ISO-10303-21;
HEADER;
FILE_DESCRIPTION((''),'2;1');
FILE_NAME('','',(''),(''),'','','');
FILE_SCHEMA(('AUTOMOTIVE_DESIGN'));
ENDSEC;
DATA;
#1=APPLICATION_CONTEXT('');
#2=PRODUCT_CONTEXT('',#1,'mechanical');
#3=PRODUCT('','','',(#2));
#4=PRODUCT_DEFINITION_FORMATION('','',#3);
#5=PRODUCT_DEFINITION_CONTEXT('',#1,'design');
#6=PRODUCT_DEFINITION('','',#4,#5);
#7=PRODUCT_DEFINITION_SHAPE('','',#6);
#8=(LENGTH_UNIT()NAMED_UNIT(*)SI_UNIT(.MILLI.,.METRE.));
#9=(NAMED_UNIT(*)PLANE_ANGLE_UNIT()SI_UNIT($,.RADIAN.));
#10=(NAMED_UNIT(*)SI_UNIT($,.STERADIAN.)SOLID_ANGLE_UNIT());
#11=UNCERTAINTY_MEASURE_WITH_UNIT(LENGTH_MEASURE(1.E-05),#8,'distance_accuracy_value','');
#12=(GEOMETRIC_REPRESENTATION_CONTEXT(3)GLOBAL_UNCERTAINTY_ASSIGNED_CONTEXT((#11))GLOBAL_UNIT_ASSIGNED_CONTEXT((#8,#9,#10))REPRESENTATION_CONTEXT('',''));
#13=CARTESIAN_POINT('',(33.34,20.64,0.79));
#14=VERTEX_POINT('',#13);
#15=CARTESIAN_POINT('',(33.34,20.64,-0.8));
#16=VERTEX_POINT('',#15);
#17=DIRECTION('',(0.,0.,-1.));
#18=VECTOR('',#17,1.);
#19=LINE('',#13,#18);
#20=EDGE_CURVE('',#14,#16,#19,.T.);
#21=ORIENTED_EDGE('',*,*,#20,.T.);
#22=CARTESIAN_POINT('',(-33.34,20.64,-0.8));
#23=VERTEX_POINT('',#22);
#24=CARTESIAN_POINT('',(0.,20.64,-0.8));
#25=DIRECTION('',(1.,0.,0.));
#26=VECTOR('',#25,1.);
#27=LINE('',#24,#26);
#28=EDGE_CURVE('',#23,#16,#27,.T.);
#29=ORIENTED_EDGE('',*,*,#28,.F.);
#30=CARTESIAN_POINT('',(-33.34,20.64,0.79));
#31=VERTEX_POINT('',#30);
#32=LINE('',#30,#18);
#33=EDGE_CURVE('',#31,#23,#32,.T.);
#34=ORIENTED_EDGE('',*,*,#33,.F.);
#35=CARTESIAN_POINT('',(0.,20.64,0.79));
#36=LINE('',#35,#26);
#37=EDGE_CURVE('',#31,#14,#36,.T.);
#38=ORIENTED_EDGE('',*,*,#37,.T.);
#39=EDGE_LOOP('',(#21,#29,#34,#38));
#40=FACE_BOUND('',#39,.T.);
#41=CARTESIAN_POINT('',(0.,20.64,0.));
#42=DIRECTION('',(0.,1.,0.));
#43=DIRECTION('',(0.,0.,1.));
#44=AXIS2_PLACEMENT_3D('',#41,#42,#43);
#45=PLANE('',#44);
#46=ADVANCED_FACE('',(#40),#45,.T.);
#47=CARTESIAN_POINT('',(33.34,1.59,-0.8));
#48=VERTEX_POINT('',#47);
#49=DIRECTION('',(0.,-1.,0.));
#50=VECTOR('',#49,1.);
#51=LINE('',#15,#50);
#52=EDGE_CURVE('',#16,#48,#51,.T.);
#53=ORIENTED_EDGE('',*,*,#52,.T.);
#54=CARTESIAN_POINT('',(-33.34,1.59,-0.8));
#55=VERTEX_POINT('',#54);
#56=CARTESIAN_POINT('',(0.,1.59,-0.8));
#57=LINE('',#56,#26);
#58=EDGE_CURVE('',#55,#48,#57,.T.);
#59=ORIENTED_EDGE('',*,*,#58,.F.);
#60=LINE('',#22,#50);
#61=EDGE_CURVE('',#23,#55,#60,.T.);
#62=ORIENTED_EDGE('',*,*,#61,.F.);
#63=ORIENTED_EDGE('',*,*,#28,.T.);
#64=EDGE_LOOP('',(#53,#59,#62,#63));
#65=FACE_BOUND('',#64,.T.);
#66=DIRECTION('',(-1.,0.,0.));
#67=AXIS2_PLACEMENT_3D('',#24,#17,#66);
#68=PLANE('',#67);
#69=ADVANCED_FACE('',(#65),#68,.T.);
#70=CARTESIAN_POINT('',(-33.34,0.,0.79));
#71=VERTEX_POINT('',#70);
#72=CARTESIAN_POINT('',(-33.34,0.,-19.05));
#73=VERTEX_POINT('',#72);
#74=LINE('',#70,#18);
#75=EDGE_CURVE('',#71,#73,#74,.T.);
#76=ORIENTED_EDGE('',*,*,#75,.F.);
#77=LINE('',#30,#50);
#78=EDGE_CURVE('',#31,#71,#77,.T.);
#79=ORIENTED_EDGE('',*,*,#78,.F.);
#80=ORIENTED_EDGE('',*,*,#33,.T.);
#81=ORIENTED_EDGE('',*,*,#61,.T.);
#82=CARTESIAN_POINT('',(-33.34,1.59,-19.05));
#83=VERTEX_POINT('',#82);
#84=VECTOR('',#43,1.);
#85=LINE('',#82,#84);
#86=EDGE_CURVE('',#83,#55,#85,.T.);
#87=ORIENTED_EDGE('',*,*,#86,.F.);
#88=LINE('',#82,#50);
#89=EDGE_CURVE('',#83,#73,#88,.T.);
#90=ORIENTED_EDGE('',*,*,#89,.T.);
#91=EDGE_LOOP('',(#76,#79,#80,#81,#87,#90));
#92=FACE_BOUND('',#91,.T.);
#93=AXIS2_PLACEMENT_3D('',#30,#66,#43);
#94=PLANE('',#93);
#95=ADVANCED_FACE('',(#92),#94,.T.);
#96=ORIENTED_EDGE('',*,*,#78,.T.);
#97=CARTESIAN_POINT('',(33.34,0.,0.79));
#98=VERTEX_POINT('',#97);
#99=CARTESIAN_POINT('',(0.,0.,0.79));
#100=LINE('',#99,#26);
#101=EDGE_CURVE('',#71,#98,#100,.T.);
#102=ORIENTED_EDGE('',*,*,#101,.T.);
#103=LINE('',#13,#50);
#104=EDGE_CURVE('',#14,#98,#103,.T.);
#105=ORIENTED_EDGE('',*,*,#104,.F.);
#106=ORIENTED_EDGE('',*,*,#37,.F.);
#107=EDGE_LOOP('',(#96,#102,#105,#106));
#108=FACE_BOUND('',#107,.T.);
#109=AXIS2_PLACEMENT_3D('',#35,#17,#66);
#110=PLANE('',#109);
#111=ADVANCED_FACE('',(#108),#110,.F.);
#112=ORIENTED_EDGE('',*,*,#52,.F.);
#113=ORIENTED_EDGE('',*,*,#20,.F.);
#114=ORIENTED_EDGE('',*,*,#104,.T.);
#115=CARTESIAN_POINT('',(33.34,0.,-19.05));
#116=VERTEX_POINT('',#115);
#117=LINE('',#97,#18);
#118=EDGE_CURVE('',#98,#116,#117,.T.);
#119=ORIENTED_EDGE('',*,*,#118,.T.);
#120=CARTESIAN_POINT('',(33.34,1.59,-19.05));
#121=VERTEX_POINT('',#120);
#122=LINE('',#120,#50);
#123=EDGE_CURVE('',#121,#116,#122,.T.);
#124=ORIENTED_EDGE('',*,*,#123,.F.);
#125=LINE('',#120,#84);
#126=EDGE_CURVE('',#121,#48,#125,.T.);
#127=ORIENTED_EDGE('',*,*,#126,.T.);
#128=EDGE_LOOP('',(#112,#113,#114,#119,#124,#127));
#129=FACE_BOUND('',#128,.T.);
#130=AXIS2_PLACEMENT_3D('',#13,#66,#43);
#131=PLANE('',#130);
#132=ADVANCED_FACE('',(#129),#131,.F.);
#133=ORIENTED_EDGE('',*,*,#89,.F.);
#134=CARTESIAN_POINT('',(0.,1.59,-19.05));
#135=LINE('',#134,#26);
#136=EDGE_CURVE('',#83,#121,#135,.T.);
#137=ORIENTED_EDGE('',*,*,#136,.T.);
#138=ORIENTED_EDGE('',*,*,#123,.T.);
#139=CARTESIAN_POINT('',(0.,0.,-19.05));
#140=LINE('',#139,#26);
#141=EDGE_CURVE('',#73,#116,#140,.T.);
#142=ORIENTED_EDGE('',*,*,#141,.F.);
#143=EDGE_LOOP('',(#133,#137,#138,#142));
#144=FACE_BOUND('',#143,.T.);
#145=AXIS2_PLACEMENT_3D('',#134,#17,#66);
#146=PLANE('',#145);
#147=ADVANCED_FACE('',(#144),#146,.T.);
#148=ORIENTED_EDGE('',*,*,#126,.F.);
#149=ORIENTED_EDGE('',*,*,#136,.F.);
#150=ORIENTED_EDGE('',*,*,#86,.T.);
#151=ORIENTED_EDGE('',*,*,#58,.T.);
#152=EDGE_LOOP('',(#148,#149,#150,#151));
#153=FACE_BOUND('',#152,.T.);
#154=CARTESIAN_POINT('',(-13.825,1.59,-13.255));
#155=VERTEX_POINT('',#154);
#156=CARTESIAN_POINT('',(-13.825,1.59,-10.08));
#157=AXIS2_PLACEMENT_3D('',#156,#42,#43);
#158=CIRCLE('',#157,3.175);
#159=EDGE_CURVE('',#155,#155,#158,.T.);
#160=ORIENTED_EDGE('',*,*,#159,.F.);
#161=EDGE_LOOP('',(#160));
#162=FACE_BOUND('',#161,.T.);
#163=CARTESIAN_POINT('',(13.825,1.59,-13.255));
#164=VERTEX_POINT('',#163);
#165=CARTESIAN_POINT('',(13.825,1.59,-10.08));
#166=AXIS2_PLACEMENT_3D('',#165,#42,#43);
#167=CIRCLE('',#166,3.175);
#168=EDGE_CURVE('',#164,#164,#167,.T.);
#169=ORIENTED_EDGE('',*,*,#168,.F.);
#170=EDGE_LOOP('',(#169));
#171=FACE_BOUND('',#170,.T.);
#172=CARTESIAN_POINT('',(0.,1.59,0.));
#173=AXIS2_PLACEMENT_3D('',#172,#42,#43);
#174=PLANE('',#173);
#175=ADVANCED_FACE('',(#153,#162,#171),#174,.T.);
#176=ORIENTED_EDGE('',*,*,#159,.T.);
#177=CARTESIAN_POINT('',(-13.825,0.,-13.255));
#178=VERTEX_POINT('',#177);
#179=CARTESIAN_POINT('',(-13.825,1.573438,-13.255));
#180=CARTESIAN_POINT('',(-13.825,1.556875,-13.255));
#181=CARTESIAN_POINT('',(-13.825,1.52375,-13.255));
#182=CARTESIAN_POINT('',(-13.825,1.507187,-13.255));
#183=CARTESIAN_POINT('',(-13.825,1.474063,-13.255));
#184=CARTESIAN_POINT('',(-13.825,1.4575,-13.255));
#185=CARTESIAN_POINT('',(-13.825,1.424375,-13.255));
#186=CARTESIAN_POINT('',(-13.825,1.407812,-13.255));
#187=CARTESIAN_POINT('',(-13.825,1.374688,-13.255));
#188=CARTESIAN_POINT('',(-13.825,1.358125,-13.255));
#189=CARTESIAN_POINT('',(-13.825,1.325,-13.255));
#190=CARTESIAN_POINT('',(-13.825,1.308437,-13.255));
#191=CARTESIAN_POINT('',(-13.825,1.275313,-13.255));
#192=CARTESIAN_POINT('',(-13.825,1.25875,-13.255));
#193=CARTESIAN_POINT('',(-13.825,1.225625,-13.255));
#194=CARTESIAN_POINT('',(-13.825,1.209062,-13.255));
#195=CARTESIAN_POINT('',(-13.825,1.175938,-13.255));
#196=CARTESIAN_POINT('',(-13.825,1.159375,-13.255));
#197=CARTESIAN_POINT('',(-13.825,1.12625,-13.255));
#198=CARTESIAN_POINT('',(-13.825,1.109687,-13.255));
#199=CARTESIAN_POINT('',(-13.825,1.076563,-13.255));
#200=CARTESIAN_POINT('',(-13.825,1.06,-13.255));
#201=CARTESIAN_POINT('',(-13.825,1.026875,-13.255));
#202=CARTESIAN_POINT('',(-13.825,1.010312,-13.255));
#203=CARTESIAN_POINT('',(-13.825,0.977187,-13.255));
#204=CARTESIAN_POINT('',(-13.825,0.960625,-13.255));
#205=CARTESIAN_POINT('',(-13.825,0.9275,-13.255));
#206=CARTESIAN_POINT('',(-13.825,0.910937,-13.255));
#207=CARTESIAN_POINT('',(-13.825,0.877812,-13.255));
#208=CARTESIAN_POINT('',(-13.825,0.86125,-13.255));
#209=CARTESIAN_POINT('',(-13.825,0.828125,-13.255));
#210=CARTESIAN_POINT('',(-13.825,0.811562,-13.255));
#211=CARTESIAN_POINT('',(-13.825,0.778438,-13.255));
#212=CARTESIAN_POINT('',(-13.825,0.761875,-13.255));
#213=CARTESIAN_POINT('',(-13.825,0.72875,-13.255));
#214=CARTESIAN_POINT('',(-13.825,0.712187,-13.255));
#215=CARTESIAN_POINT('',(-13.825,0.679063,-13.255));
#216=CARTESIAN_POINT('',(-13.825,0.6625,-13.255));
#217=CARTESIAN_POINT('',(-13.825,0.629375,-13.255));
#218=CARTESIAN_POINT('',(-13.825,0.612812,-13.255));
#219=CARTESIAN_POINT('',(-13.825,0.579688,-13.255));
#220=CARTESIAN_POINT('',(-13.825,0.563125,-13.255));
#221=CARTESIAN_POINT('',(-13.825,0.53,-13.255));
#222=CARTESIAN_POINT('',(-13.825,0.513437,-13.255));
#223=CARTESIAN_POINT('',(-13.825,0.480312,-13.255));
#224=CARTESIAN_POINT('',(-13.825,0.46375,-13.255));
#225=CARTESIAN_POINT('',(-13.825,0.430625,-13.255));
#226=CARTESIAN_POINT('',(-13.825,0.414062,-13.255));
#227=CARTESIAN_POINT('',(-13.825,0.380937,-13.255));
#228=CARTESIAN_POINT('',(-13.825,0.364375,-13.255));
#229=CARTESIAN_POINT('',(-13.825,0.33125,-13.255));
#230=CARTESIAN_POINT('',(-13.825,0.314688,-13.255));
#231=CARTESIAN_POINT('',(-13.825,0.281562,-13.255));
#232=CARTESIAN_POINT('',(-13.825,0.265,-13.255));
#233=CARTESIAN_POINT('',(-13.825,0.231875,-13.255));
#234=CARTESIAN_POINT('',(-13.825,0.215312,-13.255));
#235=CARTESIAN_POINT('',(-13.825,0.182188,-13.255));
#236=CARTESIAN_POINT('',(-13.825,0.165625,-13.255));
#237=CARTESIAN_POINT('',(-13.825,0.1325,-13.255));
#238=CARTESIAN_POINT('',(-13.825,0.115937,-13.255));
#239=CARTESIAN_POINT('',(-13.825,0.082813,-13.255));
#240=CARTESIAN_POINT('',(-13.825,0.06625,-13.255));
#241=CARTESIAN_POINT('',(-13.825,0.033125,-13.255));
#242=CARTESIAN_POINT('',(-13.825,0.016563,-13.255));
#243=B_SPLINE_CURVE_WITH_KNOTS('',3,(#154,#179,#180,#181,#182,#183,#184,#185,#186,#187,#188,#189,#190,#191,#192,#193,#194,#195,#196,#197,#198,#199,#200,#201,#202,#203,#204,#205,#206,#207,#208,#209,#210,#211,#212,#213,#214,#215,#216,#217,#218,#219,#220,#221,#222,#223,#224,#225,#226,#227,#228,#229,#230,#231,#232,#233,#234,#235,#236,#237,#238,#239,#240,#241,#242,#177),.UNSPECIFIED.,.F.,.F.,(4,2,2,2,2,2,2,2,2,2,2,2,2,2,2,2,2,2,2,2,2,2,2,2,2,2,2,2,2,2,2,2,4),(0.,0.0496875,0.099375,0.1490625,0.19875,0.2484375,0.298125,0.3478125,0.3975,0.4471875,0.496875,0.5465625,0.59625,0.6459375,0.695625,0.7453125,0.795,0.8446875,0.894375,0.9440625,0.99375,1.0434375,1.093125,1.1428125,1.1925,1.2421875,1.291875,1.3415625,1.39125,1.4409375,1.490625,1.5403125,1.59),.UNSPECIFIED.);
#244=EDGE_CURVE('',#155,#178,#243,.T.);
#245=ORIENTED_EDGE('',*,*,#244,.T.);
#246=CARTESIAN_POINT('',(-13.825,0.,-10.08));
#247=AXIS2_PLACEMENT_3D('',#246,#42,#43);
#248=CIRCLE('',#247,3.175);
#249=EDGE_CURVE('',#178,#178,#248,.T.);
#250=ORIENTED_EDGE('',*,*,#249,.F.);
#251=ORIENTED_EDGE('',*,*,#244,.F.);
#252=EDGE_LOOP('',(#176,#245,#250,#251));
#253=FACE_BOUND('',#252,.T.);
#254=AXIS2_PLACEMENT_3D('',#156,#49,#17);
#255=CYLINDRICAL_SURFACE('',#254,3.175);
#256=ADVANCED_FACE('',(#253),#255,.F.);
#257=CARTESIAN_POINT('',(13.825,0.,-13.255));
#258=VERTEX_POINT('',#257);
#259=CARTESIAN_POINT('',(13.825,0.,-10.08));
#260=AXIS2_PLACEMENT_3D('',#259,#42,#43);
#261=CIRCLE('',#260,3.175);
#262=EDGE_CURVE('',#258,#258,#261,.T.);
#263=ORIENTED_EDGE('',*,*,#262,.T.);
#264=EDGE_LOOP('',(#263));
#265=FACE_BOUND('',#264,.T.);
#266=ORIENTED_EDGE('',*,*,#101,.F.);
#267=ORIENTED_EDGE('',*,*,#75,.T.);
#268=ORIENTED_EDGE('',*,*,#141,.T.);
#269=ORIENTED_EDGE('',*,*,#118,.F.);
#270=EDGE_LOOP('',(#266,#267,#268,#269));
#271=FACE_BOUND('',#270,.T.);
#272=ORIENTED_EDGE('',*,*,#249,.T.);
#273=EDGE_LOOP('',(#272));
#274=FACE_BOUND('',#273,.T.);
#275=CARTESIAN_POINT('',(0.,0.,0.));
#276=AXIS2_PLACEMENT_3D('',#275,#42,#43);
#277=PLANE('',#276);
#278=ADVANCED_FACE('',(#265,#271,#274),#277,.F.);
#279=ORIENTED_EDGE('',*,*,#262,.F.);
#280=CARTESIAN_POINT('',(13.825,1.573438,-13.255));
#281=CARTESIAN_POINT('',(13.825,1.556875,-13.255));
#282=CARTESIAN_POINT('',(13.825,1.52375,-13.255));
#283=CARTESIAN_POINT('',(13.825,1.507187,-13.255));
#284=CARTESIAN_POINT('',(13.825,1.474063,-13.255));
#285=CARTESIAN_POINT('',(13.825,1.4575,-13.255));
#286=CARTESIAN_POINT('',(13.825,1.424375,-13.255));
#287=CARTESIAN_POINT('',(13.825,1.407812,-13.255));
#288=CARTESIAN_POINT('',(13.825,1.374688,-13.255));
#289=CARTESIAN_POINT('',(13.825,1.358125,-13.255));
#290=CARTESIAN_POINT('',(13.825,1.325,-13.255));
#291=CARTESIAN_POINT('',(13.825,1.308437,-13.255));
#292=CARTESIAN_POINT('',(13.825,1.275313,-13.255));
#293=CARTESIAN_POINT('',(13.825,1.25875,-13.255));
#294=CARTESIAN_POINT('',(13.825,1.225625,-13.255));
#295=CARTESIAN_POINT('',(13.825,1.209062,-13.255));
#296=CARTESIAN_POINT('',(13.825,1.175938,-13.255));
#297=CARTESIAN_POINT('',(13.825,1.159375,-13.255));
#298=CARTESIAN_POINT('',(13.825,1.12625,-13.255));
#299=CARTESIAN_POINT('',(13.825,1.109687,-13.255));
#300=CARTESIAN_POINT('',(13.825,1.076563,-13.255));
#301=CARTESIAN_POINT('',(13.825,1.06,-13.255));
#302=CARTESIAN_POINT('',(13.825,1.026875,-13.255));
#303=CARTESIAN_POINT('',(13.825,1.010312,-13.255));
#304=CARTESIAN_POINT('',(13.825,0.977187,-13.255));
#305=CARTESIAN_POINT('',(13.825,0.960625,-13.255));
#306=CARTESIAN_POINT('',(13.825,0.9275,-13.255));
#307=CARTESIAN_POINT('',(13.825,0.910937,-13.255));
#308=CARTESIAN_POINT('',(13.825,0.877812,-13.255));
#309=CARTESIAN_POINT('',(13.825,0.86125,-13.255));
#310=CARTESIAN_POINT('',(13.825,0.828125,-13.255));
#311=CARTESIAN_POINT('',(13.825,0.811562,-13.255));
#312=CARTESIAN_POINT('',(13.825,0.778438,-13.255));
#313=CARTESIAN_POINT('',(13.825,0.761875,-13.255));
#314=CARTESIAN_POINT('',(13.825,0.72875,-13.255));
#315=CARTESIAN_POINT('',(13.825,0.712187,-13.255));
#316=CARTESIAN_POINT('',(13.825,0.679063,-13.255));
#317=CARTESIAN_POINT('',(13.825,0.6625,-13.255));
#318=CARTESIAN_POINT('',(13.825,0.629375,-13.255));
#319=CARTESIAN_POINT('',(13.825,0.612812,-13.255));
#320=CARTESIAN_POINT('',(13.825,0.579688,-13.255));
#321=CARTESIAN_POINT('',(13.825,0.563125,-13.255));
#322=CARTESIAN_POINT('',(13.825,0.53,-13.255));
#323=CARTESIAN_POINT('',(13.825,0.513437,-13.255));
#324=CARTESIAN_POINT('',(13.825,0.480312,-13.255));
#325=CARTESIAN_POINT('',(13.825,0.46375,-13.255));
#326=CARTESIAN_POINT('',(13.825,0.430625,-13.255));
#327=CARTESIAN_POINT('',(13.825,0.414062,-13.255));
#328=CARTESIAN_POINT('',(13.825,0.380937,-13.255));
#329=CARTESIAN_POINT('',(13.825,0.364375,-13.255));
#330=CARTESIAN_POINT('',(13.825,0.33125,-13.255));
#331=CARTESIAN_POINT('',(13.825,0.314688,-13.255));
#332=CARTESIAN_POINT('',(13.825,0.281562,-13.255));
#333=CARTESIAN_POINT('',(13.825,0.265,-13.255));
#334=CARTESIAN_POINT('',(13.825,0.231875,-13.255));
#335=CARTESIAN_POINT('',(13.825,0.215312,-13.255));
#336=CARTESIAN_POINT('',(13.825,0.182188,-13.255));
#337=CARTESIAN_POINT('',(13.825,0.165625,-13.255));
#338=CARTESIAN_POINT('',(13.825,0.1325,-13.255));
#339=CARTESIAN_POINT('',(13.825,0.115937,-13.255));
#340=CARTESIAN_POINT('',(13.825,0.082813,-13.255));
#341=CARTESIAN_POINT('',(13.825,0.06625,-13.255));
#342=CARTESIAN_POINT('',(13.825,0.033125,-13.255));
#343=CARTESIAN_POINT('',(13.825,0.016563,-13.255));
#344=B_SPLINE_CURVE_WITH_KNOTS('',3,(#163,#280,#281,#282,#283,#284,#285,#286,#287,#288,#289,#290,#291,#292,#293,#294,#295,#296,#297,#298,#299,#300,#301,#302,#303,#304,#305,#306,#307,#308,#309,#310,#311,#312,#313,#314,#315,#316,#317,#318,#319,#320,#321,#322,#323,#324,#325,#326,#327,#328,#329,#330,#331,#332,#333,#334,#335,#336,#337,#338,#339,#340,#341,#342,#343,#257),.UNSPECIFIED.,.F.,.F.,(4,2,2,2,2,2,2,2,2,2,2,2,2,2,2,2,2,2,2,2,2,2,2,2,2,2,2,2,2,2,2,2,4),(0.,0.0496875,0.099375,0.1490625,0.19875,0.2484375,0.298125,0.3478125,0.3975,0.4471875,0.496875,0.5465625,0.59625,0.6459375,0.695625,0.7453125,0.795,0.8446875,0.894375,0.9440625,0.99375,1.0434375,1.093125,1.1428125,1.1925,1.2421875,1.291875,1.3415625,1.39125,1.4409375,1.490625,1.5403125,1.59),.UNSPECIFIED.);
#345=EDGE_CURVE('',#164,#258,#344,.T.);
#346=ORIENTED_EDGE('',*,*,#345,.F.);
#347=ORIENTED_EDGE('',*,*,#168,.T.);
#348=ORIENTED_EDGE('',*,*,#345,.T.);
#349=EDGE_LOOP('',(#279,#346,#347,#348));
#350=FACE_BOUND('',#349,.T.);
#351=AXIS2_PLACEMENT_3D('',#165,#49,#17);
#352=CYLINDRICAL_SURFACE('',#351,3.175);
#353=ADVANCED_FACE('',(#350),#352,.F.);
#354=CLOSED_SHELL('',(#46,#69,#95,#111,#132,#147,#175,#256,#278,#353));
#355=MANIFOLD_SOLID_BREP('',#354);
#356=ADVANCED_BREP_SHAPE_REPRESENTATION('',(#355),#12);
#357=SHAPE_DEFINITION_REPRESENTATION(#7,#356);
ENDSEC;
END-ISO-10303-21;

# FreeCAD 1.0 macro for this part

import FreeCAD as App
import Part
import Sketcher
Q = App.Units.Quantity


def add_polygon(sketch, points):
    """Adds a closed chain of lines whose ends are joined by coincident constraints."""
    first, n = sketch.GeometryCount, len(points)
    for a, b in zip(points, points[1:] + points[:1]):
        sketch.addGeometry(Part.LineSegment(App.Vector(*a, 0), App.Vector(*b, 0)), False)
    for i in range(n):
        sketch.addConstraint(Sketcher.Constraint("Coincident", first + i, 2, first + (i + 1) % n, 1))

doc = App.newDocument("Part")
params = doc.addObject("Spreadsheet::Sheet", "Params")
for row, (alias, value) in enumerate([
    ("pad1_length", "20.64 mm"),
    ("sketch2_diameter", "0.25 in"),
    ("pad2_length", "1.59 mm"),
], start=1):
    params.set(f"A{row}", alias)
    params.set(f"B{row}", "=" + value)
    params.setAlias(f"B{row}", alias)

body = doc.addObject("PartDesign::Body", "Body")

# Sketch on XZ plane
sketch1 = body.newObject("Sketcher::SketchObject", "Sketch")
sketch1.AttachmentSupport = (doc.getObject("XZ_Plane"), [""])
sketch1.MapMode = "FlatFace"
add_polygon(sketch1, [(-33.34, -0.8), (-33.34, 0.79), (33.34, 0.79), (33.34, -0.8)])  # lines 0-3
sketch1.addConstraint([
    Sketcher.Constraint("Vertical", 0),
    Sketcher.Constraint("Horizontal", 1),
    Sketcher.Constraint("Vertical", 2),
    Sketcher.Constraint("Horizontal", 3),
    Sketcher.Constraint("DistanceX", 1, 1, 1, 2, 66.68),
    Sketcher.Constraint("DistanceY", 0, 1, 0, 2, 1.59),
    Sketcher.Constraint("DistanceX", 0, 2, -1, 1, 33.34),
    Sketcher.Constraint("DistanceY", -1, 1, 0, 2, 0.79),
])
pad1 = body.newObject("PartDesign::Pad", "Pad")
pad1.Profile = sketch1
pad1.setExpression("Length", "Params.pad1_length")
pad1.Reversed = True

# Sketch on XZ plane
sketch2 = body.newObject("Sketcher::SketchObject", "Sketch001")
sketch2.AttachmentSupport = (doc.getObject("XZ_Plane"), [""])
sketch2.MapMode = "FlatFace"
add_polygon(sketch2, [(33.34, 0.79), (33.34, -19.05), (-33.34, -19.05), (-33.34, 0.79)])  # lines 0-3
sketch2.addGeometry(Part.Circle(App.Vector(-13.825, -10.08, 0), App.Vector(0, 0, 1), 3.175), False)  # 4
sketch2.addGeometry(Part.Circle(App.Vector(13.825, -10.08, 0), App.Vector(0, 0, 1), 3.175), False)  # 5
sketch2.addConstraint([
    Sketcher.Constraint("Vertical", 0),
    Sketcher.Constraint("Horizontal", 1),
    Sketcher.Constraint("Vertical", 2),
    Sketcher.Constraint("Horizontal", 3),
    Sketcher.Constraint("Equal", 4, 5),
    Sketcher.Constraint("Symmetric", 4, 3, 5, 3, -2),
    Sketcher.Constraint("Diameter", 4, Q("0.25 in")),
    Sketcher.Constraint("DistanceY", 0, 2, -1, 1, Q("0.75 in")),
    Sketcher.Constraint("DistanceX", 1, 2, 1, 1, 66.68),
    Sketcher.Constraint("DistanceY", 0, 2, 0, 1, 19.84),
    Sketcher.Constraint("DistanceX", 4, 3, -1, 1, 13.825),
    Sketcher.Constraint("DistanceY", 4, 3, -1, 1, 10.08),
    Sketcher.Constraint("DistanceX", -1, 1, 0, 2, 33.34),
])
sketch2.setExpression("Constraints[10]", "Params.sketch2_diameter")
pad2 = body.newObject("PartDesign::Pad", "Pad001")
pad2.Profile = sketch2
pad2.setExpression("Length", "Params.pad2_length")
pad2.Reversed = True

doc.recompute()
